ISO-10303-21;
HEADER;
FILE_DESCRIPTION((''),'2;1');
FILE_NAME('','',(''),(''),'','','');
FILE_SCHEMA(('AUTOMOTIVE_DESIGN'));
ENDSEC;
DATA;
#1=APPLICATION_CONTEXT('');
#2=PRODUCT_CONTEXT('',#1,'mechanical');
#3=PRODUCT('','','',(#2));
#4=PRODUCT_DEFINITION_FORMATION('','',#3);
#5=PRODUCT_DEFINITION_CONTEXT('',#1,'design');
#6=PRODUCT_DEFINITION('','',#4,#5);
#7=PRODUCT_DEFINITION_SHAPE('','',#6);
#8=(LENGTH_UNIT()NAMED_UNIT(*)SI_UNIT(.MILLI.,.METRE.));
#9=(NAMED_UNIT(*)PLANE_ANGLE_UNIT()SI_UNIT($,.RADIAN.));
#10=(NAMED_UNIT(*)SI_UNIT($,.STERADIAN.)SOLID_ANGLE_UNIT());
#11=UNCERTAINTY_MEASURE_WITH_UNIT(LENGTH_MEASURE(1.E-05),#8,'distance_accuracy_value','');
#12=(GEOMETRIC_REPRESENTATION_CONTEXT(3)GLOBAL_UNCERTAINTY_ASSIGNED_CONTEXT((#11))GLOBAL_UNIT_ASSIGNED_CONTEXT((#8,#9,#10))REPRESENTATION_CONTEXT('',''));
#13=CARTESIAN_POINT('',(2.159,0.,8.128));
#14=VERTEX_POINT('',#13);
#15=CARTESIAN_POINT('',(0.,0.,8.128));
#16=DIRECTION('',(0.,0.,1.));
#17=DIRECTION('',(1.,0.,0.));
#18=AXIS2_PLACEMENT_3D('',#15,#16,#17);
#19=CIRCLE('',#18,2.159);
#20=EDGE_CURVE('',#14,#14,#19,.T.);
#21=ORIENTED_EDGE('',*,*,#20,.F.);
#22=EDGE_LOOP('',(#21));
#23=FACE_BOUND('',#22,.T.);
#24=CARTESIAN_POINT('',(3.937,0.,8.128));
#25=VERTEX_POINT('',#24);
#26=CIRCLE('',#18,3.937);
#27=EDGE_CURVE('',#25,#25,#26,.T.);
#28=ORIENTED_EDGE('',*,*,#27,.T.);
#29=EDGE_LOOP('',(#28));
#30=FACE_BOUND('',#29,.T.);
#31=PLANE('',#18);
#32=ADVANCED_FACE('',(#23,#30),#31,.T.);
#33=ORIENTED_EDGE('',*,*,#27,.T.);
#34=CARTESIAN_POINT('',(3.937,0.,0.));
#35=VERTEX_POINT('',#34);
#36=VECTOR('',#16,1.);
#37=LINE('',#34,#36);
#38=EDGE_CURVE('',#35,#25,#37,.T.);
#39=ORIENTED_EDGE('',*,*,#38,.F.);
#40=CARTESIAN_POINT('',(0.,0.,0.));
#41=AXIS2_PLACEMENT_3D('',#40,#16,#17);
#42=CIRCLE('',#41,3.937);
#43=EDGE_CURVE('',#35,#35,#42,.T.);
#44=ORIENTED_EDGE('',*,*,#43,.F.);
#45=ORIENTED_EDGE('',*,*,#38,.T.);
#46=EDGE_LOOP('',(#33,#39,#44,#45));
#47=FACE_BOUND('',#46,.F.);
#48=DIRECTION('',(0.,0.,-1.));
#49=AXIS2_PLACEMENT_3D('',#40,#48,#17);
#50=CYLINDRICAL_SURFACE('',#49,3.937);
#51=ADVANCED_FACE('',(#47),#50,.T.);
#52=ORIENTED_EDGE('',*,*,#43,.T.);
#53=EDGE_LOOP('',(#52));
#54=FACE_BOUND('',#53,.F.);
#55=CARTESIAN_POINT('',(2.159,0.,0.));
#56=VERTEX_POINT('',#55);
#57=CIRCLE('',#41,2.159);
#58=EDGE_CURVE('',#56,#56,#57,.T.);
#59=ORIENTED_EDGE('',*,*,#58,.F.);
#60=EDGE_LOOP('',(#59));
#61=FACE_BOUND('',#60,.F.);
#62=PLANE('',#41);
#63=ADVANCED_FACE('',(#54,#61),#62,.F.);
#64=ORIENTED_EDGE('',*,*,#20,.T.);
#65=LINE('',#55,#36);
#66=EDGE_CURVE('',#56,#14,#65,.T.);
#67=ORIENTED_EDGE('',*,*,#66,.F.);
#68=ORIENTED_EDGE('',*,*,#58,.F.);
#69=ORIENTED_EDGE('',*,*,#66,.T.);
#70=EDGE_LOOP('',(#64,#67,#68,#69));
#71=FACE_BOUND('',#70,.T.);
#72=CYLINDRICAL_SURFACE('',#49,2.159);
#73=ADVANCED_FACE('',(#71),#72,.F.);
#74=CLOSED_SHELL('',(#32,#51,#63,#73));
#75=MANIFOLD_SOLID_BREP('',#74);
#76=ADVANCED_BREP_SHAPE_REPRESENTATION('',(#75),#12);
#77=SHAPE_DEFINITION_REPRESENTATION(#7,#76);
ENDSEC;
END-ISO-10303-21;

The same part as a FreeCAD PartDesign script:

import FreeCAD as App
import Part
import Sketcher
Q = App.Units.Quantity

doc = App.newDocument("Part")
body = doc.addObject("PartDesign::Body", "Body")

sketch1 = doc.addObject("Sketcher::SketchObject", "Sketch")
body.addObject(sketch1)
sketch1.AttachmentSupport = (doc.XY_Plane, [""])
sketch1.MapMode = "FlatFace"
sketch1.addGeometry(Part.Circle(App.Vector(0, 0, 0), App.Vector(0, 0, 1), 3.9), False)
sketch1.addGeometry(Part.Circle(App.Vector(0, 0, 0), App.Vector(0, 0, 1), 2.2), False)
sketch1.addConstraint(Sketcher.Constraint("Coincident", 0, 3, -1, 1))
sketch1.addConstraint(Sketcher.Constraint("Coincident", 1, 3, -1, 1))
sketch1.addConstraint(Sketcher.Constraint("Diameter", 1, Q("0.17 in")))
sketch1.addConstraint(Sketcher.Constraint("Diameter", 0, Q("0.31 in")))
pad1 = doc.addObject("PartDesign::Pad", "Pad")
body.addObject(pad1)
pad1.Profile = sketch1
pad1.Length = Q("0.32 in")

doc.recompute()
